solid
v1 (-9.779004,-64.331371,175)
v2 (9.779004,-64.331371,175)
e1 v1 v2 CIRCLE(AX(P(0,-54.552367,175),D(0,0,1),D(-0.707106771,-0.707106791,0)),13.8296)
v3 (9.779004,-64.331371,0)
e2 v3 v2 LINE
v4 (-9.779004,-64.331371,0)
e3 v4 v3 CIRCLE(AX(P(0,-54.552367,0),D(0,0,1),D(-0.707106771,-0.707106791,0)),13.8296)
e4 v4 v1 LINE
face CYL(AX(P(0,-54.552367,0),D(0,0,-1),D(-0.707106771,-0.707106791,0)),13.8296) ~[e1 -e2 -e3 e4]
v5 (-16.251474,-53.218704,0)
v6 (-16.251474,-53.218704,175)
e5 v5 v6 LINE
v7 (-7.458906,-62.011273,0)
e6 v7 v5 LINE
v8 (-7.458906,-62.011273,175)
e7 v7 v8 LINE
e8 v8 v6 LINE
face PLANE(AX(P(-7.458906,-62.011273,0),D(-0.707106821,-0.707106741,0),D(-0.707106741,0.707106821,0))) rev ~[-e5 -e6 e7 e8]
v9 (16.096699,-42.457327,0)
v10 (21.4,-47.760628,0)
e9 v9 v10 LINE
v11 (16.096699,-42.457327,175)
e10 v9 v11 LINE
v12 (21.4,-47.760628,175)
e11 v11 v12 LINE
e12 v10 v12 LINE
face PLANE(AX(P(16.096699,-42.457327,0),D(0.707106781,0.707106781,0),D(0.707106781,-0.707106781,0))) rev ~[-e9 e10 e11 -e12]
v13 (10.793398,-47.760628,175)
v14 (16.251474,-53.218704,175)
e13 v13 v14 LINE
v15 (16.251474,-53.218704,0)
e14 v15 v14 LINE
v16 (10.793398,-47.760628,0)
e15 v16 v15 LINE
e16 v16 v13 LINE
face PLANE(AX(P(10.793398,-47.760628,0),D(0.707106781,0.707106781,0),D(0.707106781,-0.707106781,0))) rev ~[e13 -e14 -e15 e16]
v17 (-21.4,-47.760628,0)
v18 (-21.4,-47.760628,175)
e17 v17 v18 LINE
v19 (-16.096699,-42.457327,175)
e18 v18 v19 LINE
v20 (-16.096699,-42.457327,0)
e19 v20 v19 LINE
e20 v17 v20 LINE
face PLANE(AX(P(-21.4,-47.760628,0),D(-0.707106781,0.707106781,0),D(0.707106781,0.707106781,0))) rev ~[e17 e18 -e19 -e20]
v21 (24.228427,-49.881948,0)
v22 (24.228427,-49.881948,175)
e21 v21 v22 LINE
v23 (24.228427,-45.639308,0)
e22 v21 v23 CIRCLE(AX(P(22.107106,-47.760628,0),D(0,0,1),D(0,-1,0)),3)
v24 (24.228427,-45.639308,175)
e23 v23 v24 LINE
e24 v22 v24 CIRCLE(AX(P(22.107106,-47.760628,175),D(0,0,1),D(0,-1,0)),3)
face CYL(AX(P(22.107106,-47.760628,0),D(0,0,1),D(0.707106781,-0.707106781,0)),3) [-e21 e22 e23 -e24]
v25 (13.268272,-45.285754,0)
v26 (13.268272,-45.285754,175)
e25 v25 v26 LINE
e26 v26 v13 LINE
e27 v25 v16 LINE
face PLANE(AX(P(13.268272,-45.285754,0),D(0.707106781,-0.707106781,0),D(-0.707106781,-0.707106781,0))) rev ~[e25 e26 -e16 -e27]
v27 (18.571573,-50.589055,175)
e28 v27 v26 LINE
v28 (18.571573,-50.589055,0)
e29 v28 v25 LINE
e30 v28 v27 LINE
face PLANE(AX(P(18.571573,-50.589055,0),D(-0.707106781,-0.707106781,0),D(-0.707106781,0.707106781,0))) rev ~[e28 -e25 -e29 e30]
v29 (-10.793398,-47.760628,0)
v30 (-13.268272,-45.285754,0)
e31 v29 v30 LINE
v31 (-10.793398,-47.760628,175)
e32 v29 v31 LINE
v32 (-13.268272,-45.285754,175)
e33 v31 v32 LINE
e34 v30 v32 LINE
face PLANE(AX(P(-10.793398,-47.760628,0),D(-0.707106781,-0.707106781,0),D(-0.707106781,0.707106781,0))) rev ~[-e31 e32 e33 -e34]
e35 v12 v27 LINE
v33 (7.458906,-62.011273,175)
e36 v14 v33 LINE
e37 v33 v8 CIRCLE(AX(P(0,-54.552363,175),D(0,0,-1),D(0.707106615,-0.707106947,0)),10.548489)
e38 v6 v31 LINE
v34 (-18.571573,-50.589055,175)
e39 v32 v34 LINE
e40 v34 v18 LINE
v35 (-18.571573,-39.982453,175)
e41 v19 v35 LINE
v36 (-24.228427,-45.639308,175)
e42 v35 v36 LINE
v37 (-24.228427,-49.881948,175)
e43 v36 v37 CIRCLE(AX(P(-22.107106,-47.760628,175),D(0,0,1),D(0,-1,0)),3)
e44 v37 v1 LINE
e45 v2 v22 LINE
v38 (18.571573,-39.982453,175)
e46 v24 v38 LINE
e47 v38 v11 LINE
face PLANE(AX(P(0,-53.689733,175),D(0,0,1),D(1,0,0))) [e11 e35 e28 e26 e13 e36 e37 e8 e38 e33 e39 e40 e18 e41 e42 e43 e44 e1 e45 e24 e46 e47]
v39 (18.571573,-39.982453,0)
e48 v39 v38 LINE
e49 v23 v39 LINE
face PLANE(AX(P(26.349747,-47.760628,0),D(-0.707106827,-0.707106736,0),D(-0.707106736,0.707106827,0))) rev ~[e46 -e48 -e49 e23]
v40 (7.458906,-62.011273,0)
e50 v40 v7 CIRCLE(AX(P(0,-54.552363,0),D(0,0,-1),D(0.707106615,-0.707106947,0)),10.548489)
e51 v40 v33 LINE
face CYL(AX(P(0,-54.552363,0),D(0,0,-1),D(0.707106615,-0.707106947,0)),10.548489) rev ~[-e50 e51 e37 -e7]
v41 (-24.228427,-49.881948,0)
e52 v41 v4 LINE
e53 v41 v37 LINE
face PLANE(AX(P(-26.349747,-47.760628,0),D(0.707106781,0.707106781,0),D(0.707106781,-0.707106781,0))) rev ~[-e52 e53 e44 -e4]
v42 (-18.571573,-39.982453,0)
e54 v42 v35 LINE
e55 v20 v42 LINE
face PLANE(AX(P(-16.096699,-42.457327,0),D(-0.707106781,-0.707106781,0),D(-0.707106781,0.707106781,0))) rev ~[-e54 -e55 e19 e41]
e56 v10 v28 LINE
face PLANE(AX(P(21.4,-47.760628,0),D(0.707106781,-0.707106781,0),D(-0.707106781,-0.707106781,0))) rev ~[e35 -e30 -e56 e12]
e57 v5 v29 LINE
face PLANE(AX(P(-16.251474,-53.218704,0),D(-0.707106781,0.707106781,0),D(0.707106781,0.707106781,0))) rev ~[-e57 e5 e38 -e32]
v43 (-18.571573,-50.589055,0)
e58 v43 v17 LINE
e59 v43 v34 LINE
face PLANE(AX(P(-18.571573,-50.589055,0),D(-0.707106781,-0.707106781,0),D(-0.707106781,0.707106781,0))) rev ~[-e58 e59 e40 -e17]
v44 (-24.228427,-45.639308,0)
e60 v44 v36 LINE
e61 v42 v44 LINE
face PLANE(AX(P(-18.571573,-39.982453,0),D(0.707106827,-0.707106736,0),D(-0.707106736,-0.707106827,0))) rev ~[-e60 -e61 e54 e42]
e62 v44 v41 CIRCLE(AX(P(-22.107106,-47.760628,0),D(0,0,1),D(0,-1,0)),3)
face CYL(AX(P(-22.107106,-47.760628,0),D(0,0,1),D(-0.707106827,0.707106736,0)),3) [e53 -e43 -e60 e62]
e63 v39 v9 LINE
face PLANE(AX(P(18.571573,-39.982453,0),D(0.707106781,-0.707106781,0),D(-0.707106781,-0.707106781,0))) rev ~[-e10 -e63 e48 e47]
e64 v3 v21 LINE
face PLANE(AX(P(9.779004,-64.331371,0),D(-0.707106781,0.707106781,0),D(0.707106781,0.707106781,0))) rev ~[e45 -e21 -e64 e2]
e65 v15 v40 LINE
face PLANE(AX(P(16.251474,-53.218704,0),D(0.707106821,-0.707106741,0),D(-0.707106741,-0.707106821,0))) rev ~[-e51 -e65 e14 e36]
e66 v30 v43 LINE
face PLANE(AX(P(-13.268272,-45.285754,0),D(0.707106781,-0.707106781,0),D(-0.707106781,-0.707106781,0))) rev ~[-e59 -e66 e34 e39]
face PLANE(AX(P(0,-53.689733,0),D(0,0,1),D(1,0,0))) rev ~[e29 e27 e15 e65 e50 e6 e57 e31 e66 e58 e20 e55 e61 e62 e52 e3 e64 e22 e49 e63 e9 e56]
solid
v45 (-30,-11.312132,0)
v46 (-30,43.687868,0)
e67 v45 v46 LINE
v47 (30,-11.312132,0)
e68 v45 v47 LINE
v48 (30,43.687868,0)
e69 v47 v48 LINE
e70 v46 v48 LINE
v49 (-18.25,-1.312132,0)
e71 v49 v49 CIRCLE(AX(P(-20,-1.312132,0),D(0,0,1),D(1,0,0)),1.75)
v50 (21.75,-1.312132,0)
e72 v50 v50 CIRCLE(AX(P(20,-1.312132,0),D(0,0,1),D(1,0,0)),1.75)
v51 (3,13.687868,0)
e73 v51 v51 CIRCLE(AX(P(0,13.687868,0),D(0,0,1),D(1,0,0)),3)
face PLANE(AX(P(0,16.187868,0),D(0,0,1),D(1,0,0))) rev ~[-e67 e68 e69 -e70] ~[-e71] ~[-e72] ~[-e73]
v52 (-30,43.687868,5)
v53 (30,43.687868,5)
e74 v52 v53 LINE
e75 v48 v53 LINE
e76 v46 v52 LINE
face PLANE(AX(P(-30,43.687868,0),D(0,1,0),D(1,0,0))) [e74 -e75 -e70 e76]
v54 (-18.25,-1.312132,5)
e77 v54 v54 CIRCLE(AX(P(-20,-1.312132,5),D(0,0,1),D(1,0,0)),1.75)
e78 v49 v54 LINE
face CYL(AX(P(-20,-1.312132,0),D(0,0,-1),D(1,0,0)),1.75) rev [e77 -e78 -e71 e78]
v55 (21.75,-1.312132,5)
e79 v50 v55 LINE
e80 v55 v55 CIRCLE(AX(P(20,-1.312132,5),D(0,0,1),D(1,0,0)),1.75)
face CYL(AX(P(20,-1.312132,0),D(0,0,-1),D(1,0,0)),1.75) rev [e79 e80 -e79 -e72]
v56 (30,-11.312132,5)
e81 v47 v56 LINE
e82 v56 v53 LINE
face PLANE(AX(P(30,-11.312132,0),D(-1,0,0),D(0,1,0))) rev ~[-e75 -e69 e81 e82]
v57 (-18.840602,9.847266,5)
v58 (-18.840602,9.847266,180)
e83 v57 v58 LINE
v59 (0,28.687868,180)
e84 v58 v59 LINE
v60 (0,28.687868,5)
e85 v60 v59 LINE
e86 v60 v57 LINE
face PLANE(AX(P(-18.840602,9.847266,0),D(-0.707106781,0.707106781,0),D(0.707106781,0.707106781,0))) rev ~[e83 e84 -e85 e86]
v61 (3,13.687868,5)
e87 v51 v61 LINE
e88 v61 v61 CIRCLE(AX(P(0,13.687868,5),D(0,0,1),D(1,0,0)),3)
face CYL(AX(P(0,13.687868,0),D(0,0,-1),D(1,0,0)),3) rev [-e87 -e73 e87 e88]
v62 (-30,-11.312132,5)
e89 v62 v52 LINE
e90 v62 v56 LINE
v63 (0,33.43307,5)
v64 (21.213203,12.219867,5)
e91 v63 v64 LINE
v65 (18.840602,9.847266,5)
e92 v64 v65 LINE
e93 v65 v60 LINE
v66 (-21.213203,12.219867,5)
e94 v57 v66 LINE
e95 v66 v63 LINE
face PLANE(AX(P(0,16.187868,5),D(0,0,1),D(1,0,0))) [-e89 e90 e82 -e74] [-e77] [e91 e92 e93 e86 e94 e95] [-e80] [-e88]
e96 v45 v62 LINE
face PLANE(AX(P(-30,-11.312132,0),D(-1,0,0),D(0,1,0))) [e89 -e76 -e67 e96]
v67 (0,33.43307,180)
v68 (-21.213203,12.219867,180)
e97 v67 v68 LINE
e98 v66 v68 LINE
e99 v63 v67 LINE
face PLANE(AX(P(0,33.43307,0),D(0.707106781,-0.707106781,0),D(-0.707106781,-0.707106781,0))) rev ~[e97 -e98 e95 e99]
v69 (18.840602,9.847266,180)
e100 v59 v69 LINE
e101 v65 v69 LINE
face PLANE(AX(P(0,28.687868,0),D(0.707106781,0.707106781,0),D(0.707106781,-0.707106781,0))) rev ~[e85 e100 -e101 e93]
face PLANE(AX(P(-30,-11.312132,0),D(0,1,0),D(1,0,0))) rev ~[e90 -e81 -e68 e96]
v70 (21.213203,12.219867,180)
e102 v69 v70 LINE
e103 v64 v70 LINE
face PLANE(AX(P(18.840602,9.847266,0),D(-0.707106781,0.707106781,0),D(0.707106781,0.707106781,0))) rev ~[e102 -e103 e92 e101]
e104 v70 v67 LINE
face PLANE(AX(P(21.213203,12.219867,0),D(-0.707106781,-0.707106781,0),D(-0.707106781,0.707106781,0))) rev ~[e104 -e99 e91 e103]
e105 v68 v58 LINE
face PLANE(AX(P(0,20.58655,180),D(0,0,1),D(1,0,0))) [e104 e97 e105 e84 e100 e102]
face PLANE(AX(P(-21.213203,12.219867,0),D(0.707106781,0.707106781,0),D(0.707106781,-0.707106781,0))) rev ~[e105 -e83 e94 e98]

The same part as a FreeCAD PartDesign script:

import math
import FreeCAD as App
import Part
import Sketcher

V = App.Vector


def edges_at(feature, points):
    """Names of the edges that pass closest to the given points."""
    edges = feature.Shape.Edges
    near = lambda p: min(range(len(edges)), key=lambda i: edges[i].distToShape(Part.Vertex(*p))[0])
    return sorted({f"Edge{near(p) + 1}" for p in points})


def add_polygon(sketch, points):
    """Adds a closed chain of lines whose ends are joined by coincident constraints."""
    first, n = sketch.GeometryCount, len(points)
    for a, b in zip(points, points[1:] + points[:1]):
        sketch.addGeometry(Part.LineSegment(App.Vector(*a, 0), App.Vector(*b, 0)), False)
    for i in range(n):
        sketch.addConstraint(Sketcher.Constraint("Coincident", first + i, 2, first + (i + 1) % n, 1))

doc = App.newDocument("Part")
body = doc.addObject("PartDesign::Body", "Body")

# Sketch on XY plane
sketch1 = body.newObject("Sketcher::SketchObject", "Sketch")
sketch1.AttachmentSupport = (doc.getObject("XY_Plane"), [""])
sketch1.MapMode = "FlatFace"
add_polygon(sketch1, [(-30, 43.7), (-30, -11.3), (30, -11.3), (30, 43.7)])  # lines 0-3
sketch1.addGeometry(Part.Circle(V(-20, -1.3, 0), V(0, 0, 1), 1.8), False)  # 4
sketch1.addGeometry(Part.Circle(V(20, -1.3, 0), V(0, 0, 1), 1.8), False)  # 5
sketch1.addGeometry(Part.Circle(V(0, 13.7, 0), V(0, 0, 1), 3), False)  # 6
add_polygon(sketch1, [(0, 28.7), (-18.8, 9.8), (-21.2, 12.2), (0, 33.4), (21.2, 12.2), (18.8, 9.8)])  # lines 7-12
sketch1.addConstraint([
    Sketcher.Constraint("Vertical", 0),
    Sketcher.Constraint("Horizontal", 1),
    Sketcher.Constraint("Vertical", 2),
    Sketcher.Constraint("Horizontal", 3),
    Sketcher.Constraint("Equal", 4, 5),
    Sketcher.Constraint("Symmetric", 4, 3, 5, 3, -2),
    Sketcher.Constraint("Symmetric", 8, 2, 10, 2, -2),
    Sketcher.Constraint("Symmetric", 7, 2, 11, 2, -2),
    Sketcher.Constraint("PointOnObject", 6, 3, -2),
    Sketcher.Constraint("PointOnObject", 9, 2, -2),
    Sketcher.Constraint("PointOnObject", 12, 2, -2),
    Sketcher.Constraint("Perpendicular", 7, 8),
    Sketcher.Constraint("Perpendicular", 8, 9),
    Sketcher.Constraint("Perpendicular", 9, 10),
    Sketcher.Constraint("Diameter", 6, 6.0),
    Sketcher.Constraint("Diameter", 4, 3.5),
    Sketcher.Constraint("DistanceX", 1, 1, 1, 2, 60.0),
    Sketcher.Constraint("DistanceY", 0, 2, 0, 1, 55.0),
    Sketcher.Constraint("Distance", 9, 29.999999),
    Sketcher.Constraint("DistanceX", 4, 3, -1, 1, 20.0),
    Sketcher.Constraint("DistanceX", 0, 2, -1, 1, 30.0),
    Sketcher.Constraint("DistanceY", 4, 3, 6, 3, 15.0),
    Sketcher.Constraint("DistanceY", 0, 2, 4, 3, 10.0),
    Sketcher.Constraint("DistanceY", 6, 3, 12, 2, 15.0),
    Sketcher.Constraint("DistanceY", 4, 3, 8, 2, 13.531999),
    Sketcher.Constraint("DistanceY", -1, 1, 2, 2, 43.687868),
])
pad1 = body.newObject("PartDesign::Pad", "Pad")
pad1.Profile = sketch1
pad1.Length = 5

# Sketch on XY plane
sketch2 = body.newObject("Sketcher::SketchObject", "Sketch001")
sketch2.AttachmentSupport = (doc.getObject("XY_Plane"), [""])
sketch2.MapMode = "FlatFace"
add_polygon(sketch2, [(0, 33.4), (-21.2, 12.2), (-18.8, 9.8), (0, 28.7), (18.8, 9.8), (21.2, 12.2)])  # lines 0-5
sketch2.addConstraint([
    Sketcher.Constraint("Symmetric", 1, 2, 3, 2, -2),
    Sketcher.Constraint("Symmetric", 0, 2, 4, 2, -2),
    Sketcher.Constraint("PointOnObject", 2, 2, -2),
    Sketcher.Constraint("PointOnObject", 5, 2, -2),
    Sketcher.Constraint("Perpendicular", 0, 1),
    Sketcher.Constraint("Perpendicular", 1, 2),
    Sketcher.Constraint("Perpendicular", 2, 3),
    Sketcher.Constraint("Distance", 0, 29.999999),
    Sketcher.Constraint("DistanceY", 0, 2, 2, 2, 16.468001),
    Sketcher.Constraint("DistanceY", -1, 1, 2, 2, 28.687868),
])
pad2 = body.newObject("PartDesign::Pad", "Pad001")
pad2.Profile = sketch2
pad2.Length = 180
body2 = doc.addObject("PartDesign::Body", "Body001")

# Sketch on XY plane
sketch3 = body2.newObject("Sketcher::SketchObject", "Sketch002")
sketch3.AttachmentSupport = (doc.getObject("XY_Plane001"), [""])
sketch3.MapMode = "FlatFace"
sketch3.addGeometry([
    Part.LineSegment(V(-16.1, -42.5, 0), V(-18.6, -40, 0)),  # 0
    Part.LineSegment(V(-18.6, -40, 0), V(-26.3, -47.8, 0)),  # 1
    Part.LineSegment(V(-26.3, -47.8, 0), V(-9.8, -64.3, 0)),  # 2
    Part.ArcOfCircle(Part.Circle(V(0, -54.6, 0), V(0, 0, 1), 13.8), math.radians(-135), math.radians(-45)),  # 3
    Part.LineSegment(V(9.8, -64.3, 0), V(26.3, -47.8, 0)),  # 4
    Part.LineSegment(V(26.3, -47.8, 0), V(18.6, -40, 0)),  # 5
    Part.LineSegment(V(18.6, -40, 0), V(16.1, -42.5, 0)),  # 6
    Part.LineSegment(V(16.1, -42.5, 0), V(21.4, -47.8, 0)),  # 7
    Part.LineSegment(V(21.4, -47.8, 0), V(18.6, -50.6, 0)),  # 8
    Part.LineSegment(V(18.6, -50.6, 0), V(13.3, -45.3, 0)),  # 9
    Part.LineSegment(V(13.3, -45.3, 0), V(10.8, -47.8, 0)),  # 10
    Part.LineSegment(V(10.8, -47.8, 0), V(16.3, -53.2, 0)),  # 11
    Part.LineSegment(V(16.3, -53.2, 0), V(7.5, -62, 0)),  # 12
    Part.ArcOfCircle(Part.Circle(V(0, -54.6, 0), V(0, 0, 1), 10.5), math.radians(-135), math.radians(-45)),  # 13
    Part.LineSegment(V(-7.5, -62, 0), V(-16.3, -53.2, 0)),  # 14
    Part.LineSegment(V(-16.3, -53.2, 0), V(-10.8, -47.8, 0)),  # 15
    Part.LineSegment(V(-10.8, -47.8, 0), V(-13.3, -45.3, 0)),  # 16
    Part.LineSegment(V(-13.3, -45.3, 0), V(-18.6, -50.6, 0)),  # 17
    Part.LineSegment(V(-18.6, -50.6, 0), V(-21.4, -47.8, 0)),  # 18
    Part.LineSegment(V(-21.4, -47.8, 0), V(-16.1, -42.5, 0)),  # 19
], False)
sketch3.addConstraint([
    Sketcher.Constraint("Coincident", 0, 2, 1, 1),
    Sketcher.Constraint("Coincident", 1, 2, 2, 1),
    Sketcher.Constraint("Tangent", 2, 2, 3, 1),
    Sketcher.Constraint("Tangent", 3, 2, 4, 1),
    Sketcher.Constraint("Coincident", 4, 2, 5, 1),
    Sketcher.Constraint("Coincident", 5, 2, 6, 1),
    Sketcher.Constraint("Coincident", 6, 2, 7, 1),
    Sketcher.Constraint("Coincident", 7, 2, 8, 1),
    Sketcher.Constraint("Coincident", 8, 2, 9, 1),
    Sketcher.Constraint("Coincident", 9, 2, 10, 1),
    Sketcher.Constraint("Coincident", 10, 2, 11, 1),
    Sketcher.Constraint("Coincident", 11, 2, 12, 1),
    Sketcher.Constraint("Tangent", 12, 2, 13, 2),
    Sketcher.Constraint("Tangent", 13, 1, 14, 1),
    Sketcher.Constraint("Coincident", 14, 2, 15, 1),
    Sketcher.Constraint("Coincident", 15, 2, 16, 1),
    Sketcher.Constraint("Coincident", 16, 2, 17, 1),
    Sketcher.Constraint("Coincident", 17, 2, 18, 1),
    Sketcher.Constraint("Coincident", 18, 2, 19, 1),
    Sketcher.Constraint("Coincident", 19, 2, 0, 1),
    Sketcher.Constraint("Coincident", 13, 3, 3, 3),
    Sketcher.Constraint("Symmetric", 2, 2, 3, 2, -2),
    Sketcher.Constraint("Symmetric", 0, 2, 5, 2, -2),
    Sketcher.Constraint("Symmetric", 11, 2, 14, 2, -2),
    Sketcher.Constraint("Symmetric", 10, 2, 15, 2, -2),
    Sketcher.Constraint("Symmetric", 9, 2, 16, 2, -2),
    Sketcher.Constraint("Symmetric", 8, 2, 17, 2, -2),
    Sketcher.Constraint("Symmetric", 7, 2, 18, 2, -2),
    Sketcher.Constraint("Symmetric", 6, 2, 19, 2, -2),
    Sketcher.Constraint("Perpendicular", 0, 1),
    Sketcher.Constraint("Perpendicular", 1, 2),
    Sketcher.Constraint("Perpendicular", 2, 4),
    Sketcher.Constraint("Perpendicular", 4, 5),
    Sketcher.Constraint("Perpendicular", 6, 7),
    Sketcher.Constraint("Perpendicular", 7, 8),
    Sketcher.Constraint("Perpendicular", 8, 9),
    Sketcher.Constraint("Perpendicular", 9, 10),
    Sketcher.Constraint("Perpendicular", 10, 11),
    Sketcher.Constraint("Perpendicular", 11, 12),
    Sketcher.Constraint("Horizontal", 4, 2, 7, 2),
    Sketcher.Constraint("Horizontal", 7, 2, 10, 2),
    Sketcher.Constraint("Vertical", 5, 2, 8, 2),
    Sketcher.Constraint("Equal", 7, 9),
    Sketcher.Constraint("Distance", 1, 11.0),
    Sketcher.Constraint("Distance", 8, 4.0),
    Sketcher.Constraint("DistanceX", -1, 1, 7, 2, 21.4),
    Sketcher.Constraint("Radius", 3, 13.8296),
    Sketcher.Constraint("Radius", 13, 10.548489),
    Sketcher.Constraint("DistanceY", 2, 2, -1, 1, 64.331371),
])
pad3 = body2.newObject("PartDesign::Pad", "Pad002")
pad3.Profile = sketch3
pad3.Length = 175
doc.recompute()

fillet = body2.newObject("PartDesign::Fillet", "Fillet")
fillet.Base = (pad3, edges_at(pad3, [(26.35, -47.761, 87.5), (-26.35, -47.761, 87.5)]))
fillet.Radius = 3

doc.recompute()
